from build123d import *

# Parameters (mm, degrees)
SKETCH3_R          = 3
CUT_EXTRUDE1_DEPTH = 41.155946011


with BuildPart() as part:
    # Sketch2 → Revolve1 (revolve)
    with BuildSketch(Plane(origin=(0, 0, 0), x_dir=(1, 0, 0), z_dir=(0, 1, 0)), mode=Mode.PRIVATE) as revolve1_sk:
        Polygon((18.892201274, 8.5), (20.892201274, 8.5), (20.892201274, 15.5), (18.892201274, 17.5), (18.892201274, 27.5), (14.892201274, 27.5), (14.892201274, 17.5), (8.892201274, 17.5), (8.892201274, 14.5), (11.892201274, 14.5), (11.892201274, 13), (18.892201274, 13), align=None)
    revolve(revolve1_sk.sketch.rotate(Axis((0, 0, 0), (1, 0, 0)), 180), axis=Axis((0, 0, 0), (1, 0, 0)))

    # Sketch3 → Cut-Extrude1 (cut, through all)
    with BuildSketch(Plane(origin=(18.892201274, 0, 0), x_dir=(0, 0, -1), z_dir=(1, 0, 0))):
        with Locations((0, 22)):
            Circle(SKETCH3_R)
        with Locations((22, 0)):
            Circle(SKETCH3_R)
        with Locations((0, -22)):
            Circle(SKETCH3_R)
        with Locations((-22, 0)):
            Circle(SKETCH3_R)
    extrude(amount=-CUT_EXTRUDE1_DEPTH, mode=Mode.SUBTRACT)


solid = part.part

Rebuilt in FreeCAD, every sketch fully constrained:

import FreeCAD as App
import Part
import Sketcher

V = App.Vector
Q = App.Units.Quantity

doc = App.newDocument("Part")
params = doc.addObject("Spreadsheet::Sheet", "Params")
for row, (alias, value) in enumerate([
    ("sketch1_width", "2 mm"),
    ("sketch1_width2", "4 mm"),
    ("sketch1_width3", "6 mm"),
    ("sketch1_width4", "3 mm"),
    ("sketch1_height", "10 mm"),
    ("revolution_angle", "360 deg"),
    ("sketch2_diameter", "6 mm"),
], start=1):
    params.set(f"A{row}", alias)
    params.set(f"B{row}", "=" + value)
    params.setAlias(f"B{row}", alias)

body = doc.addObject("PartDesign::Body", "Body")

sketch1 = doc.addObject("Sketcher::SketchObject", "Sketch")
body.addObject(sketch1)
sketch1.AttachmentSupport = (doc.XZ_Plane, [""])
sketch1.MapMode = "FlatFace"
sketch1.addGeometry(Part.LineSegment(V(18.9, -8.5, 0), V(20.9, -8.5, 0)), False)
sketch1.addGeometry(Part.LineSegment(V(20.9, -8.5, 0), V(20.9, -15.5, 0)), False)
sketch1.addGeometry(Part.LineSegment(V(20.9, -15.5, 0), V(18.9, -17.5, 0)), False)
sketch1.addGeometry(Part.LineSegment(V(18.9, -17.5, 0), V(18.9, -27.5, 0)), False)
sketch1.addGeometry(Part.LineSegment(V(18.9, -27.5, 0), V(14.9, -27.5, 0)), False)
sketch1.addGeometry(Part.LineSegment(V(14.9, -27.5, 0), V(14.9, -17.5, 0)), False)
sketch1.addGeometry(Part.LineSegment(V(14.9, -17.5, 0), V(8.9, -17.5, 0)), False)
sketch1.addGeometry(Part.LineSegment(V(8.9, -17.5, 0), V(8.9, -14.5, 0)), False)
sketch1.addGeometry(Part.LineSegment(V(8.9, -14.5, 0), V(11.9, -14.5, 0)), False)
sketch1.addGeometry(Part.LineSegment(V(11.9, -14.5, 0), V(11.9, -13, 0)), False)
sketch1.addGeometry(Part.LineSegment(V(11.9, -13, 0), V(18.9, -13, 0)), False)
sketch1.addGeometry(Part.LineSegment(V(18.9, -13, 0), V(18.9, -8.5, 0)), False)
sketch1.addConstraint(Sketcher.Constraint("Coincident", 0, 2, 1, 1))
sketch1.addConstraint(Sketcher.Constraint("Coincident", 1, 2, 2, 1))
sketch1.addConstraint(Sketcher.Constraint("Coincident", 2, 2, 3, 1))
sketch1.addConstraint(Sketcher.Constraint("Coincident", 3, 2, 4, 1))
sketch1.addConstraint(Sketcher.Constraint("Coincident", 4, 2, 5, 1))
sketch1.addConstraint(Sketcher.Constraint("Coincident", 5, 2, 6, 1))
sketch1.addConstraint(Sketcher.Constraint("Coincident", 6, 2, 7, 1))
sketch1.addConstraint(Sketcher.Constraint("Coincident", 7, 2, 8, 1))
sketch1.addConstraint(Sketcher.Constraint("Coincident", 8, 2, 9, 1))
sketch1.addConstraint(Sketcher.Constraint("Coincident", 9, 2, 10, 1))
sketch1.addConstraint(Sketcher.Constraint("Coincident", 10, 2, 11, 1))
sketch1.addConstraint(Sketcher.Constraint("Coincident", 11, 2, 0, 1))
sketch1.addConstraint(Sketcher.Constraint("Horizontal", 0))
sketch1.addConstraint(Sketcher.Constraint("Vertical", 1))
sketch1.addConstraint(Sketcher.Constraint("Vertical", 3))
sketch1.addConstraint(Sketcher.Constraint("Horizontal", 4))
sketch1.addConstraint(Sketcher.Constraint("Vertical", 5))
sketch1.addConstraint(Sketcher.Constraint("Horizontal", 6))
sketch1.addConstraint(Sketcher.Constraint("Vertical", 7))
sketch1.addConstraint(Sketcher.Constraint("Horizontal", 8))
sketch1.addConstraint(Sketcher.Constraint("Vertical", 9))
sketch1.addConstraint(Sketcher.Constraint("Horizontal", 10))
sketch1.addConstraint(Sketcher.Constraint("Vertical", 11))
sketch1.addConstraint(Sketcher.Constraint("Horizontal", 2, 2, 5, 2))
sketch1.addConstraint(Sketcher.Constraint("Vertical", 3, 2, 10, 2))
sketch1.addConstraint(Sketcher.Constraint("Equal", 10, 1))
sketch1.addConstraint(Sketcher.Constraint("Equal", 8, 7))
sketch1.addConstraint(Sketcher.Constraint("DistanceX", 0, 1, 0, 2, Q("2 mm")))
sketch1.addConstraint(Sketcher.Constraint("DistanceX", 4, 2, 4, 1, Q("4 mm")))
sketch1.addConstraint(Sketcher.Constraint("DistanceX", 6, 2, 6, 1, Q("6 mm")))
sketch1.addConstraint(Sketcher.Constraint("DistanceX", 8, 1, 8, 2, Q("3 mm")))
sketch1.addConstraint(Sketcher.Constraint("DistanceY", 3, 2, 3, 1, Q("10 mm")))
sketch1.addConstraint(Sketcher.Constraint("Angle", 2, Q("-135 deg")))
sketch1.addConstraint(Sketcher.Constraint("DistanceY", 9, 1, 9, 2, Q("1.5 mm")))
sketch1.addConstraint(Sketcher.Constraint("DistanceY", 9, 2, -1, 1, Q("13 mm")))
sketch1.addConstraint(Sketcher.Constraint("DistanceX", -1, 1, 0, 2, Q("20.892201 mm")))
sketch1.setExpression("Constraints[27]", "Params.sketch1_width")
sketch1.setExpression("Constraints[28]", "Params.sketch1_width2")
sketch1.setExpression("Constraints[29]", "Params.sketch1_width3")
sketch1.setExpression("Constraints[30]", "Params.sketch1_width4")
sketch1.setExpression("Constraints[31]", "Params.sketch1_height")
revolution = doc.addObject("PartDesign::Revolution", "Revolution")
body.addObject(revolution)
revolution.Profile = sketch1
revolution.ReferenceAxis = (sketch1, ["H_Axis"])
revolution.setExpression("Angle", "Params.revolution_angle")

sketch2 = doc.addObject("Sketcher::SketchObject", "Sketch001")
body.addObject(sketch2)
sketch2.AttachmentSupport = (doc.YZ_Plane, [""])
sketch2.MapMode = "FlatFace"
sketch2.AttachmentOffset = App.Placement(V(0, 0, 18.892201), App.Rotation())
sketch2.addGeometry(Part.Circle(V(22, 0, 0), V(0, 0, 1), 3), False)
sketch2.addGeometry(Part.Circle(V(0, -22, 0), V(0, 0, 1), 3), False)
sketch2.addGeometry(Part.Circle(V(-22, 0, 0), V(0, 0, 1), 3), False)
sketch2.addGeometry(Part.Circle(V(0, 22, 0), V(0, 0, 1), 3), False)
sketch2.addConstraint(Sketcher.Constraint("Equal", 0, 1))
sketch2.addConstraint(Sketcher.Constraint("Equal", 1, 2))
sketch2.addConstraint(Sketcher.Constraint("Equal", 2, 3))
sketch2.addConstraint(Sketcher.Constraint("Symmetric", 0, 3, 2, 3, -1, 1))
sketch2.addConstraint(Sketcher.Constraint("Symmetric", 1, 3, 3, 3, -1, 1))
sketch2.addConstraint(Sketcher.Constraint("PointOnObject", 0, 3, -1))
sketch2.addConstraint(Sketcher.Constraint("PointOnObject", 1, 3, -2))
sketch2.addConstraint(Sketcher.Constraint("Diameter", 0, Q("6 mm")))
sketch2.addConstraint(Sketcher.Constraint("DistanceX", -1, 1, 0, 3, Q("22 mm")))
sketch2.addConstraint(Sketcher.Constraint("DistanceY", 1, 3, -1, 1, Q("22 mm")))
sketch2.setExpression("Constraints[7]", "Params.sketch2_diameter")
pocket1 = doc.addObject("PartDesign::Pocket", "Pocket")
body.addObject(pocket1)
pocket1.Profile = sketch2
pocket1.Type = "ThroughAll"

doc.recompute()
